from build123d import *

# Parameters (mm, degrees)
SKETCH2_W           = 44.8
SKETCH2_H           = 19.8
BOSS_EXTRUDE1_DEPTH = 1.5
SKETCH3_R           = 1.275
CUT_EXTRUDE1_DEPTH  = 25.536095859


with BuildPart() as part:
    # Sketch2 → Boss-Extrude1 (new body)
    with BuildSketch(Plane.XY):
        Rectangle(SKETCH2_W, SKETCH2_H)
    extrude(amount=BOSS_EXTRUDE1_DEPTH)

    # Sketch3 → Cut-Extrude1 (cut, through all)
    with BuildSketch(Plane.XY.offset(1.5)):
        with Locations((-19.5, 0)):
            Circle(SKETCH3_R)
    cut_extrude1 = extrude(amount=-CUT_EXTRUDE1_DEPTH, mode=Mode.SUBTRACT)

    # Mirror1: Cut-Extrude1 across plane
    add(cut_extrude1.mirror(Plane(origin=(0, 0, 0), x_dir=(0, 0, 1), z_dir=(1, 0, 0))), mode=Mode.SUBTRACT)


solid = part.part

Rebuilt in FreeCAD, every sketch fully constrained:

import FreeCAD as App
import Part
import Sketcher
from FreeCAD import Vector
Q = App.Units.Quantity

doc = App.newDocument("Part")
params = doc.addObject("Spreadsheet::Sheet", "Params")
for row, (alias, value) in enumerate([
    ("sketch1_width", "44.8 mm"),
    ("sketch1_height", "19.8 mm"),
    ("pad1_length", "1.5 mm"),
    ("sketch2_diameter", "2.55 mm"),
], start=1):
    params.set(f"A{row}", alias)
    params.set(f"B{row}", "=" + value)
    params.setAlias(f"B{row}", alias)

body = doc.addObject("PartDesign::Body", "Body")

# Sketch on XY plane
sketch1 = doc.addObject("Sketcher::SketchObject", "Sketch")
body.addObject(sketch1)
sketch1.AttachmentSupport = (doc.XY_Plane, [""])
sketch1.MapMode = "FlatFace"
sketch1.addGeometry(Part.LineSegment(Vector(-22, 10, 0), Vector(-22, -10, 0)), False)
sketch1.addGeometry(Part.LineSegment(Vector(-22, -10, 0), Vector(22, -10, 0)), False)
sketch1.addGeometry(Part.LineSegment(Vector(22, -10, 0), Vector(22, 10, 0)), False)
sketch1.addGeometry(Part.LineSegment(Vector(22, 10, 0), Vector(-22, 10, 0)), False)
sketch1.addConstraint(Sketcher.Constraint("Coincident", 0, 2, 1, 1))
sketch1.addConstraint(Sketcher.Constraint("Coincident", 1, 2, 2, 1))
sketch1.addConstraint(Sketcher.Constraint("Coincident", 2, 2, 3, 1))
sketch1.addConstraint(Sketcher.Constraint("Coincident", 3, 2, 0, 1))
sketch1.addConstraint(Sketcher.Constraint("Vertical", 0))
sketch1.addConstraint(Sketcher.Constraint("Horizontal", 1))
sketch1.addConstraint(Sketcher.Constraint("Vertical", 2))
sketch1.addConstraint(Sketcher.Constraint("Horizontal", 3))
sketch1.addConstraint(Sketcher.Constraint("Symmetric", 0, 2, 2, 2, -1, 1))
sketch1.addConstraint(Sketcher.Constraint("DistanceX", 1, 1, 1, 2, Q("44.8 mm")))
sketch1.addConstraint(Sketcher.Constraint("DistanceY", 0, 2, 0, 1, Q("19.8 mm")))
sketch1.setExpression("Constraints[9]", "Params.sketch1_width")
sketch1.setExpression("Constraints[10]", "Params.sketch1_height")
pad1 = doc.addObject("PartDesign::Pad", "Pad")
body.addObject(pad1)
pad1.Profile = sketch1
pad1.setExpression("Length", "Params.pad1_length")

# Sketch on XY plane
sketch2 = doc.addObject("Sketcher::SketchObject", "Sketch001")
body.addObject(sketch2)
sketch2.AttachmentSupport = (doc.XY_Plane, [""])
sketch2.MapMode = "FlatFace"
sketch2.AttachmentOffset = App.Placement(Vector(0, 0, 1.5), App.Rotation())
sketch2.addGeometry(Part.Circle(Vector(-19.5, 0, 0), Vector(0, 0, 1), 1.3), False)
sketch2.addConstraint(Sketcher.Constraint("PointOnObject", 0, 3, -1))
sketch2.addConstraint(Sketcher.Constraint("Diameter", 0, Q("2.55 mm")))
sketch2.addConstraint(Sketcher.Constraint("DistanceX", 0, 3, -1, 1, Q("19.5 mm")))
sketch2.setExpression("Constraints[1]", "Params.sketch2_diameter")
pocket1 = doc.addObject("PartDesign::Pocket", "Pocket")
body.addObject(pocket1)
pocket1.Profile = sketch2
pocket1.Type = "ThroughAll"
doc.recompute()

mirrored = doc.addObject("PartDesign::Mirrored", "Mirrored")
body.addObject(mirrored)
mirrored.Originals = [pocket1]
mirrored.MirrorPlane = (doc.YZ_Plane, [""])
body.Tip = mirrored

doc.recompute()
